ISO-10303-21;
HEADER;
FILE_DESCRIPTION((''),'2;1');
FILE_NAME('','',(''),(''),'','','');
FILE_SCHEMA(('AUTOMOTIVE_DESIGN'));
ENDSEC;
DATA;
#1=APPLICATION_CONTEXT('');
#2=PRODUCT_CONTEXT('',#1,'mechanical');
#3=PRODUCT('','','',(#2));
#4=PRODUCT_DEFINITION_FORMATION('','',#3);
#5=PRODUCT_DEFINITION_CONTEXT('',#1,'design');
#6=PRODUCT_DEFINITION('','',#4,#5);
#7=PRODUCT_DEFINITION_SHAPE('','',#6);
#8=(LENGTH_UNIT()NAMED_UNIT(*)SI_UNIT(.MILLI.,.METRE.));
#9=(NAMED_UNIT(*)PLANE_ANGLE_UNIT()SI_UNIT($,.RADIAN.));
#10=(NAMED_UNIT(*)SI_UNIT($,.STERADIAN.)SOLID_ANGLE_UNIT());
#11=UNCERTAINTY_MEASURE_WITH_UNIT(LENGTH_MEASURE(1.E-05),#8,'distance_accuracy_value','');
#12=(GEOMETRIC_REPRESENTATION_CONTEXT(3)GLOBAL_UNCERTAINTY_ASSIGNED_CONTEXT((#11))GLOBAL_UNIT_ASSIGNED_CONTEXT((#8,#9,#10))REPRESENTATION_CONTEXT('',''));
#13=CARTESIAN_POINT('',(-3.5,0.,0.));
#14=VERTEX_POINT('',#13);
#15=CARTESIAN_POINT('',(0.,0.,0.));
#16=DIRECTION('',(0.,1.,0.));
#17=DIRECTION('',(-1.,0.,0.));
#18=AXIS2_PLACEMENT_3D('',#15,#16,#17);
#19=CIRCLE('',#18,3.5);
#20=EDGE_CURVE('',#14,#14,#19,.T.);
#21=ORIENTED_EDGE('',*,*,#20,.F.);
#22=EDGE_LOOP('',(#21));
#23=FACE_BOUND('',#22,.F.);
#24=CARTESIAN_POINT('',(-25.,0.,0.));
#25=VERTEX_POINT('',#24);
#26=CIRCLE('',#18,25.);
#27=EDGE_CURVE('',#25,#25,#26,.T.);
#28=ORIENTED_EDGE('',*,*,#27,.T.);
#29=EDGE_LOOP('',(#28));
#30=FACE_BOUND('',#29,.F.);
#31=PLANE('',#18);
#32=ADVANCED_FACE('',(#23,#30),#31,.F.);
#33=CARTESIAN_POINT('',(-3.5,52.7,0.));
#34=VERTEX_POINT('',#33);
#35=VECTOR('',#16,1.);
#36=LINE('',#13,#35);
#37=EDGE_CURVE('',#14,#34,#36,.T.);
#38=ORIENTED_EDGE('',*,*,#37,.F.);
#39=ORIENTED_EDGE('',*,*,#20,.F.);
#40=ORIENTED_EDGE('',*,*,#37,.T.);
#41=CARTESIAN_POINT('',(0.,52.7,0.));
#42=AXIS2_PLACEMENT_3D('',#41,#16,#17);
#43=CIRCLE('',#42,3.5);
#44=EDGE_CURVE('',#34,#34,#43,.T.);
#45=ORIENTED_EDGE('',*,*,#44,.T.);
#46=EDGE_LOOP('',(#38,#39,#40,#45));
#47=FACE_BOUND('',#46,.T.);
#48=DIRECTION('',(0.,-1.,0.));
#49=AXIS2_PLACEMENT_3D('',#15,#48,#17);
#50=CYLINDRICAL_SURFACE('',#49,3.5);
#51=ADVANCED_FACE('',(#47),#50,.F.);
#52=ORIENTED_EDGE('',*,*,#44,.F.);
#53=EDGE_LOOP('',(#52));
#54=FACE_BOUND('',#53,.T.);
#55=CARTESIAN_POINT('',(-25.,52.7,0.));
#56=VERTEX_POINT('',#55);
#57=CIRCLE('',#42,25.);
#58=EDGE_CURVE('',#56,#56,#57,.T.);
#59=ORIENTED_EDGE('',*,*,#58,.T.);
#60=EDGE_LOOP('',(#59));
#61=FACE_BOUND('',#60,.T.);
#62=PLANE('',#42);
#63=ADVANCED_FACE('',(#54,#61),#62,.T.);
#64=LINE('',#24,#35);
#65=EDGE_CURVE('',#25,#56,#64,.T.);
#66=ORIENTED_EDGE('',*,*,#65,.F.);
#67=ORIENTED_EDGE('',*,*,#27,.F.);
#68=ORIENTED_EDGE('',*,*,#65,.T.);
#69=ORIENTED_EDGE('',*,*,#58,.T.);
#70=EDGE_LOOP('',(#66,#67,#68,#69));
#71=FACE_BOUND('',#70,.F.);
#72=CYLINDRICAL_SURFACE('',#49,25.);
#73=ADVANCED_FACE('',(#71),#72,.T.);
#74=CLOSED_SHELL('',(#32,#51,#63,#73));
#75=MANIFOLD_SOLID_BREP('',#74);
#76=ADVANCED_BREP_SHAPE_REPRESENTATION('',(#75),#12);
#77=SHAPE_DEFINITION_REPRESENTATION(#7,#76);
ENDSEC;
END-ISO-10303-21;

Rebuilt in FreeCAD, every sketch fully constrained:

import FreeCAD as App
import Part
import Sketcher
Q = App.Units.Quantity

doc = App.newDocument("Part")
params = doc.addObject("Spreadsheet::Sheet", "Params")
for row, (alias, value) in enumerate([
    ("sketch1_diameter", "50 mm"),
    ("sketch1_diameter2", "7 mm"),
    ("pad1_length", "52.7 mm"),
], start=1):
    params.set(f"A{row}", alias)
    params.set(f"B{row}", "=" + value)
    params.setAlias(f"B{row}", alias)

body = doc.addObject("PartDesign::Body", "Body")

sketch1 = body.newObject("Sketcher::SketchObject", "Sketch")
sketch1.AttachmentSupport = (doc.getObject("XZ_Plane"), [""])
sketch1.MapMode = "FlatFace"
sketch1.addGeometry([
    Part.Circle(App.Vector(0, 0, 0), App.Vector(0, 0, 1), 25),
    Part.Circle(App.Vector(0, 0, 0), App.Vector(0, 0, 1), 3.5),
], False)
sketch1.addConstraint([
    Sketcher.Constraint("Coincident", 0, 3, -1, 1),
    Sketcher.Constraint("Coincident", 1, 3, -1, 1),
    Sketcher.Constraint("Diameter", 0, Q("50 mm")),
    Sketcher.Constraint("Diameter", 1, Q("7 mm")),
])
sketch1.setExpression("Constraints[2]", "Params.sketch1_diameter")
sketch1.setExpression("Constraints[3]", "Params.sketch1_diameter2")
pad1 = body.newObject("PartDesign::Pad", "Pad")
pad1.Profile = sketch1
pad1.setExpression("Length", "Params.pad1_length")
pad1.Reversed = True

doc.recompute()
